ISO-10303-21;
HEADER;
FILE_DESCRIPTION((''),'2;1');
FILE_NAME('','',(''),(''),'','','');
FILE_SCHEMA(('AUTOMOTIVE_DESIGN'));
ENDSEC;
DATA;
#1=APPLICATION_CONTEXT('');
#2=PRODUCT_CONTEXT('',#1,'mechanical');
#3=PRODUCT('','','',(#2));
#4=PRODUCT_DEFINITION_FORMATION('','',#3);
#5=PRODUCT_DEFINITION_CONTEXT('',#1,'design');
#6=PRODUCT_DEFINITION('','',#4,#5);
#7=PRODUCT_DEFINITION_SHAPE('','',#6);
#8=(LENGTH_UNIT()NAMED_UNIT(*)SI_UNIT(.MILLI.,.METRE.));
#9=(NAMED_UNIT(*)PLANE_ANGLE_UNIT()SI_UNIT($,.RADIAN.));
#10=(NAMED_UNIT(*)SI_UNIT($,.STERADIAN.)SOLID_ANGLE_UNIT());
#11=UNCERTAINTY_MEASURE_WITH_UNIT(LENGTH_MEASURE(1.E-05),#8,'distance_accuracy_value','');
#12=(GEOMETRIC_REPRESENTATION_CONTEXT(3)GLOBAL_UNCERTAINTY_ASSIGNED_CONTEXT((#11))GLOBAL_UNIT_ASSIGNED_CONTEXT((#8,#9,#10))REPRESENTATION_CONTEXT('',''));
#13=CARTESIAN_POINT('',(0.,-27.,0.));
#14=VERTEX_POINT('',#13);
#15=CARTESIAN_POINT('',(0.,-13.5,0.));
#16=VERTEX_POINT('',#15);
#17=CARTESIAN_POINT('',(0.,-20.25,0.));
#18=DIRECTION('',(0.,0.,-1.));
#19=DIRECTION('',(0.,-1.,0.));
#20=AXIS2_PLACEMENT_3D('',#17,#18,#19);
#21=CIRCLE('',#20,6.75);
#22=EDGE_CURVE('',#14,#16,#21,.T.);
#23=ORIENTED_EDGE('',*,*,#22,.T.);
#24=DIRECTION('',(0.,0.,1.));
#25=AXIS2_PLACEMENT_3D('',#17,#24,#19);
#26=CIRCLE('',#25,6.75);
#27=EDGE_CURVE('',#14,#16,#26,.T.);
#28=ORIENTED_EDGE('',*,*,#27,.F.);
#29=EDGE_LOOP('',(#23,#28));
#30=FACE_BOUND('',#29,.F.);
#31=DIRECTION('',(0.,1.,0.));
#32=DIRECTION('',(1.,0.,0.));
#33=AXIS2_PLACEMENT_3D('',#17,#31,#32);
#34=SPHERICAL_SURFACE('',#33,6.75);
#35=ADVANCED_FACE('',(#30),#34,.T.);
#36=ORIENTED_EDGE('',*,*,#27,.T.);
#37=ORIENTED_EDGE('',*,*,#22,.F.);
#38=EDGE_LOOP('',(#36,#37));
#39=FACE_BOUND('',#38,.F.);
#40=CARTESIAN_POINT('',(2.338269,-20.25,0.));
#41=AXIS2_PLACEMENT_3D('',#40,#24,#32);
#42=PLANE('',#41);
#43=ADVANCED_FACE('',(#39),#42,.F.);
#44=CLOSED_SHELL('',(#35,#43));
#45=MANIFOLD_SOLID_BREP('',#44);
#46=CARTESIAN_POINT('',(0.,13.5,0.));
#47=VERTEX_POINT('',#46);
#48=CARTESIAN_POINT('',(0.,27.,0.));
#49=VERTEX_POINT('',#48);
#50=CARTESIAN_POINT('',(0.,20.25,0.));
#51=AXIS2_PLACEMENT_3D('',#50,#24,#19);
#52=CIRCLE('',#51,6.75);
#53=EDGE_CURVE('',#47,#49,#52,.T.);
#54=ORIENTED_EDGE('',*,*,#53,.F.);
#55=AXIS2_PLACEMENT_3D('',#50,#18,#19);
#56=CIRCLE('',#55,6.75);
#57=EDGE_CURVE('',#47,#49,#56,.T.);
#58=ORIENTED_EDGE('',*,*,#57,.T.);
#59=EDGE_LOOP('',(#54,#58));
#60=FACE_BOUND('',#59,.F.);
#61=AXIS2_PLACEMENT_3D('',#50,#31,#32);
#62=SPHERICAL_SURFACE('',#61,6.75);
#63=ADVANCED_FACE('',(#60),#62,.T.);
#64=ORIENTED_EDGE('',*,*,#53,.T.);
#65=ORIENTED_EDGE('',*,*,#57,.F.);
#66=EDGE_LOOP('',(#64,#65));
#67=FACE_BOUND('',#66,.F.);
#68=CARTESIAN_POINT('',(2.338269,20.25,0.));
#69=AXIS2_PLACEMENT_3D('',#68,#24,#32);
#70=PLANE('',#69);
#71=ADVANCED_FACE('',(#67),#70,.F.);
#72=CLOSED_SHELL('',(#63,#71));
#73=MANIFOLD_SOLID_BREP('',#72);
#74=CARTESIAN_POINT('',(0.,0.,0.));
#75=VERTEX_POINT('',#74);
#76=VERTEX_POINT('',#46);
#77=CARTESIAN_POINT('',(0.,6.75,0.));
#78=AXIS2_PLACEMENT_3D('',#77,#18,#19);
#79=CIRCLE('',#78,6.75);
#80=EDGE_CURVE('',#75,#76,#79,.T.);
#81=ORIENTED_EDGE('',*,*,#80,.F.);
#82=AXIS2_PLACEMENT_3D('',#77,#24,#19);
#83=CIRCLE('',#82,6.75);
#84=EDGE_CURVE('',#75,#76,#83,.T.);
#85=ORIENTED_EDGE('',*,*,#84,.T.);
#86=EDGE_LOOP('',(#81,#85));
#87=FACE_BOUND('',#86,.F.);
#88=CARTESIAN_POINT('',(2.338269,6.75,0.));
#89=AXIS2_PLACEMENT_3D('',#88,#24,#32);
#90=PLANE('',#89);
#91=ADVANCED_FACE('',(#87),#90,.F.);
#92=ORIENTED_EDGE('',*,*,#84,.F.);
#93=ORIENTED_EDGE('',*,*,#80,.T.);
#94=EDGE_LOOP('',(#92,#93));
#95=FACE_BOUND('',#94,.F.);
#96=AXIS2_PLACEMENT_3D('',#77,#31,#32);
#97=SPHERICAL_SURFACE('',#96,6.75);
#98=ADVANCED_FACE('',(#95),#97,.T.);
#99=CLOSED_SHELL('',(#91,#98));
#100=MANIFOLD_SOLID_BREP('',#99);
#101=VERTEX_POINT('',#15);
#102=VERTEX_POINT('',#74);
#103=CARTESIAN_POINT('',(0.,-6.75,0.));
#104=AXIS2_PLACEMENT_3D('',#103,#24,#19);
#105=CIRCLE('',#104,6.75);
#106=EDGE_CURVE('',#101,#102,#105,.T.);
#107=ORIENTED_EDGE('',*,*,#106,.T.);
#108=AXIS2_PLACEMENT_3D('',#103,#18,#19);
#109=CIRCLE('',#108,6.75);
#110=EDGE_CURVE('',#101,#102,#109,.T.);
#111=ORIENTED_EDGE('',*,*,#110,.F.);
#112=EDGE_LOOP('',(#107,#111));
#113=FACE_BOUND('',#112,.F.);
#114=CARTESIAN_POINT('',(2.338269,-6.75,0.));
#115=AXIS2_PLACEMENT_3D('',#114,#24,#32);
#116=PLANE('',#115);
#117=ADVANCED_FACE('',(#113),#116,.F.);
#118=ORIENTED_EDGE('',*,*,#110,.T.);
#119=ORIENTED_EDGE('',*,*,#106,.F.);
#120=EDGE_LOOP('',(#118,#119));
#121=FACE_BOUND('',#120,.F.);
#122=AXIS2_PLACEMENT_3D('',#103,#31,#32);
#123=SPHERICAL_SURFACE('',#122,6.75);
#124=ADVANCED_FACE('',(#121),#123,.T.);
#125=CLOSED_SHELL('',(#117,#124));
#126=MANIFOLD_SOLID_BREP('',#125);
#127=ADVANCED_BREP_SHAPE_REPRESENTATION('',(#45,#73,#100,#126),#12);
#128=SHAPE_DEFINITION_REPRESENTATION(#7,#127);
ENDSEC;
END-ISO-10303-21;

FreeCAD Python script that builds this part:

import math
import FreeCAD as App
import Part
import Sketcher

V = App.Vector
Q = App.Units.Quantity

doc = App.newDocument("Part")
body = doc.addObject("PartDesign::Body", "Body")
body.AllowCompound = True

# Sketch on XY plane
sketch1 = body.newObject("Sketcher::SketchObject", "Sketch")
sketch1.AttachmentSupport = (doc.getObject("XY_Plane"), [""])
sketch1.MapMode = "FlatFace"
sketch1.addGeometry([
    Part.LineSegment(V(0, 27, 0), V(0, 13.5, 0)),  # 0
    Part.ArcOfCircle(Part.Circle(V(0, 20.25, 0), V(0, 0, 1), 6.75), math.radians(-90), math.radians(90)),  # 1
    Part.LineSegment(V(0, 13.5, 0), V(0, 0, 0)),  # 2
    Part.ArcOfCircle(Part.Circle(V(0, 6.75, 0), V(0, 0, 1), 6.75), math.radians(-90), math.radians(90)),  # 3
    Part.ArcOfCircle(Part.Circle(V(0, -6.75, 0), V(0, 0, 1), 6.75), math.radians(-90), math.radians(90)),  # 4
    Part.LineSegment(V(0, 0, 0), V(0, -13.5, 0)),  # 5
    Part.ArcOfCircle(Part.Circle(V(0, -20.25, 0), V(0, 0, 1), 6.75), math.radians(-90), math.radians(90)),  # 6
    Part.LineSegment(V(0, -13.5, 0), V(0, -27, 0)),  # 7
], False)
sketch1.addConstraint([
    Sketcher.Constraint("Coincident", 0, 1, 1, 2),
    Sketcher.Constraint("Coincident", 1, 1, 0, 2),
    Sketcher.Constraint("Coincident", 2, 1, 3, 2),
    Sketcher.Constraint("Coincident", 3, 1, 2, 2),
    Sketcher.Constraint("Coincident", 4, 1, 5, 2),
    Sketcher.Constraint("Coincident", 5, 1, 4, 2),
    Sketcher.Constraint("Coincident", 6, 1, 7, 2),
    Sketcher.Constraint("Coincident", 7, 1, 6, 2),
    Sketcher.Constraint("Vertical", 0),
    Sketcher.Constraint("Vertical", 2),
    Sketcher.Constraint("Vertical", 5),
    Sketcher.Constraint("Vertical", 7),
    Sketcher.Constraint("Coincident", 3, 1, -1, 1),
    Sketcher.Constraint("Coincident", 5, 1, -1, 1),
    Sketcher.Constraint("Coincident", 2, 1, 1, 1),
    Sketcher.Constraint("Coincident", 7, 1, 4, 1),
    Sketcher.Constraint("Equal", 1, 3),
    Sketcher.Constraint("Equal", 3, 4),
    Sketcher.Constraint("Equal", 4, 6),
    Sketcher.Constraint("PointOnObject", 1, 3, -2),
    Sketcher.Constraint("PointOnObject", 3, 3, -2),
    Sketcher.Constraint("PointOnObject", 4, 3, -2),
    Sketcher.Constraint("PointOnObject", 6, 3, -2),
    Sketcher.Constraint("Radius", 1, Q("6.75 mm")),
])
revolution = body.newObject("PartDesign::Revolution", "Revolution")
revolution.Profile = sketch1
revolution.ReferenceAxis = (sketch1, ["V_Axis"])
revolution.Angle = 180
revolution.Reversed = True

doc.recompute()
